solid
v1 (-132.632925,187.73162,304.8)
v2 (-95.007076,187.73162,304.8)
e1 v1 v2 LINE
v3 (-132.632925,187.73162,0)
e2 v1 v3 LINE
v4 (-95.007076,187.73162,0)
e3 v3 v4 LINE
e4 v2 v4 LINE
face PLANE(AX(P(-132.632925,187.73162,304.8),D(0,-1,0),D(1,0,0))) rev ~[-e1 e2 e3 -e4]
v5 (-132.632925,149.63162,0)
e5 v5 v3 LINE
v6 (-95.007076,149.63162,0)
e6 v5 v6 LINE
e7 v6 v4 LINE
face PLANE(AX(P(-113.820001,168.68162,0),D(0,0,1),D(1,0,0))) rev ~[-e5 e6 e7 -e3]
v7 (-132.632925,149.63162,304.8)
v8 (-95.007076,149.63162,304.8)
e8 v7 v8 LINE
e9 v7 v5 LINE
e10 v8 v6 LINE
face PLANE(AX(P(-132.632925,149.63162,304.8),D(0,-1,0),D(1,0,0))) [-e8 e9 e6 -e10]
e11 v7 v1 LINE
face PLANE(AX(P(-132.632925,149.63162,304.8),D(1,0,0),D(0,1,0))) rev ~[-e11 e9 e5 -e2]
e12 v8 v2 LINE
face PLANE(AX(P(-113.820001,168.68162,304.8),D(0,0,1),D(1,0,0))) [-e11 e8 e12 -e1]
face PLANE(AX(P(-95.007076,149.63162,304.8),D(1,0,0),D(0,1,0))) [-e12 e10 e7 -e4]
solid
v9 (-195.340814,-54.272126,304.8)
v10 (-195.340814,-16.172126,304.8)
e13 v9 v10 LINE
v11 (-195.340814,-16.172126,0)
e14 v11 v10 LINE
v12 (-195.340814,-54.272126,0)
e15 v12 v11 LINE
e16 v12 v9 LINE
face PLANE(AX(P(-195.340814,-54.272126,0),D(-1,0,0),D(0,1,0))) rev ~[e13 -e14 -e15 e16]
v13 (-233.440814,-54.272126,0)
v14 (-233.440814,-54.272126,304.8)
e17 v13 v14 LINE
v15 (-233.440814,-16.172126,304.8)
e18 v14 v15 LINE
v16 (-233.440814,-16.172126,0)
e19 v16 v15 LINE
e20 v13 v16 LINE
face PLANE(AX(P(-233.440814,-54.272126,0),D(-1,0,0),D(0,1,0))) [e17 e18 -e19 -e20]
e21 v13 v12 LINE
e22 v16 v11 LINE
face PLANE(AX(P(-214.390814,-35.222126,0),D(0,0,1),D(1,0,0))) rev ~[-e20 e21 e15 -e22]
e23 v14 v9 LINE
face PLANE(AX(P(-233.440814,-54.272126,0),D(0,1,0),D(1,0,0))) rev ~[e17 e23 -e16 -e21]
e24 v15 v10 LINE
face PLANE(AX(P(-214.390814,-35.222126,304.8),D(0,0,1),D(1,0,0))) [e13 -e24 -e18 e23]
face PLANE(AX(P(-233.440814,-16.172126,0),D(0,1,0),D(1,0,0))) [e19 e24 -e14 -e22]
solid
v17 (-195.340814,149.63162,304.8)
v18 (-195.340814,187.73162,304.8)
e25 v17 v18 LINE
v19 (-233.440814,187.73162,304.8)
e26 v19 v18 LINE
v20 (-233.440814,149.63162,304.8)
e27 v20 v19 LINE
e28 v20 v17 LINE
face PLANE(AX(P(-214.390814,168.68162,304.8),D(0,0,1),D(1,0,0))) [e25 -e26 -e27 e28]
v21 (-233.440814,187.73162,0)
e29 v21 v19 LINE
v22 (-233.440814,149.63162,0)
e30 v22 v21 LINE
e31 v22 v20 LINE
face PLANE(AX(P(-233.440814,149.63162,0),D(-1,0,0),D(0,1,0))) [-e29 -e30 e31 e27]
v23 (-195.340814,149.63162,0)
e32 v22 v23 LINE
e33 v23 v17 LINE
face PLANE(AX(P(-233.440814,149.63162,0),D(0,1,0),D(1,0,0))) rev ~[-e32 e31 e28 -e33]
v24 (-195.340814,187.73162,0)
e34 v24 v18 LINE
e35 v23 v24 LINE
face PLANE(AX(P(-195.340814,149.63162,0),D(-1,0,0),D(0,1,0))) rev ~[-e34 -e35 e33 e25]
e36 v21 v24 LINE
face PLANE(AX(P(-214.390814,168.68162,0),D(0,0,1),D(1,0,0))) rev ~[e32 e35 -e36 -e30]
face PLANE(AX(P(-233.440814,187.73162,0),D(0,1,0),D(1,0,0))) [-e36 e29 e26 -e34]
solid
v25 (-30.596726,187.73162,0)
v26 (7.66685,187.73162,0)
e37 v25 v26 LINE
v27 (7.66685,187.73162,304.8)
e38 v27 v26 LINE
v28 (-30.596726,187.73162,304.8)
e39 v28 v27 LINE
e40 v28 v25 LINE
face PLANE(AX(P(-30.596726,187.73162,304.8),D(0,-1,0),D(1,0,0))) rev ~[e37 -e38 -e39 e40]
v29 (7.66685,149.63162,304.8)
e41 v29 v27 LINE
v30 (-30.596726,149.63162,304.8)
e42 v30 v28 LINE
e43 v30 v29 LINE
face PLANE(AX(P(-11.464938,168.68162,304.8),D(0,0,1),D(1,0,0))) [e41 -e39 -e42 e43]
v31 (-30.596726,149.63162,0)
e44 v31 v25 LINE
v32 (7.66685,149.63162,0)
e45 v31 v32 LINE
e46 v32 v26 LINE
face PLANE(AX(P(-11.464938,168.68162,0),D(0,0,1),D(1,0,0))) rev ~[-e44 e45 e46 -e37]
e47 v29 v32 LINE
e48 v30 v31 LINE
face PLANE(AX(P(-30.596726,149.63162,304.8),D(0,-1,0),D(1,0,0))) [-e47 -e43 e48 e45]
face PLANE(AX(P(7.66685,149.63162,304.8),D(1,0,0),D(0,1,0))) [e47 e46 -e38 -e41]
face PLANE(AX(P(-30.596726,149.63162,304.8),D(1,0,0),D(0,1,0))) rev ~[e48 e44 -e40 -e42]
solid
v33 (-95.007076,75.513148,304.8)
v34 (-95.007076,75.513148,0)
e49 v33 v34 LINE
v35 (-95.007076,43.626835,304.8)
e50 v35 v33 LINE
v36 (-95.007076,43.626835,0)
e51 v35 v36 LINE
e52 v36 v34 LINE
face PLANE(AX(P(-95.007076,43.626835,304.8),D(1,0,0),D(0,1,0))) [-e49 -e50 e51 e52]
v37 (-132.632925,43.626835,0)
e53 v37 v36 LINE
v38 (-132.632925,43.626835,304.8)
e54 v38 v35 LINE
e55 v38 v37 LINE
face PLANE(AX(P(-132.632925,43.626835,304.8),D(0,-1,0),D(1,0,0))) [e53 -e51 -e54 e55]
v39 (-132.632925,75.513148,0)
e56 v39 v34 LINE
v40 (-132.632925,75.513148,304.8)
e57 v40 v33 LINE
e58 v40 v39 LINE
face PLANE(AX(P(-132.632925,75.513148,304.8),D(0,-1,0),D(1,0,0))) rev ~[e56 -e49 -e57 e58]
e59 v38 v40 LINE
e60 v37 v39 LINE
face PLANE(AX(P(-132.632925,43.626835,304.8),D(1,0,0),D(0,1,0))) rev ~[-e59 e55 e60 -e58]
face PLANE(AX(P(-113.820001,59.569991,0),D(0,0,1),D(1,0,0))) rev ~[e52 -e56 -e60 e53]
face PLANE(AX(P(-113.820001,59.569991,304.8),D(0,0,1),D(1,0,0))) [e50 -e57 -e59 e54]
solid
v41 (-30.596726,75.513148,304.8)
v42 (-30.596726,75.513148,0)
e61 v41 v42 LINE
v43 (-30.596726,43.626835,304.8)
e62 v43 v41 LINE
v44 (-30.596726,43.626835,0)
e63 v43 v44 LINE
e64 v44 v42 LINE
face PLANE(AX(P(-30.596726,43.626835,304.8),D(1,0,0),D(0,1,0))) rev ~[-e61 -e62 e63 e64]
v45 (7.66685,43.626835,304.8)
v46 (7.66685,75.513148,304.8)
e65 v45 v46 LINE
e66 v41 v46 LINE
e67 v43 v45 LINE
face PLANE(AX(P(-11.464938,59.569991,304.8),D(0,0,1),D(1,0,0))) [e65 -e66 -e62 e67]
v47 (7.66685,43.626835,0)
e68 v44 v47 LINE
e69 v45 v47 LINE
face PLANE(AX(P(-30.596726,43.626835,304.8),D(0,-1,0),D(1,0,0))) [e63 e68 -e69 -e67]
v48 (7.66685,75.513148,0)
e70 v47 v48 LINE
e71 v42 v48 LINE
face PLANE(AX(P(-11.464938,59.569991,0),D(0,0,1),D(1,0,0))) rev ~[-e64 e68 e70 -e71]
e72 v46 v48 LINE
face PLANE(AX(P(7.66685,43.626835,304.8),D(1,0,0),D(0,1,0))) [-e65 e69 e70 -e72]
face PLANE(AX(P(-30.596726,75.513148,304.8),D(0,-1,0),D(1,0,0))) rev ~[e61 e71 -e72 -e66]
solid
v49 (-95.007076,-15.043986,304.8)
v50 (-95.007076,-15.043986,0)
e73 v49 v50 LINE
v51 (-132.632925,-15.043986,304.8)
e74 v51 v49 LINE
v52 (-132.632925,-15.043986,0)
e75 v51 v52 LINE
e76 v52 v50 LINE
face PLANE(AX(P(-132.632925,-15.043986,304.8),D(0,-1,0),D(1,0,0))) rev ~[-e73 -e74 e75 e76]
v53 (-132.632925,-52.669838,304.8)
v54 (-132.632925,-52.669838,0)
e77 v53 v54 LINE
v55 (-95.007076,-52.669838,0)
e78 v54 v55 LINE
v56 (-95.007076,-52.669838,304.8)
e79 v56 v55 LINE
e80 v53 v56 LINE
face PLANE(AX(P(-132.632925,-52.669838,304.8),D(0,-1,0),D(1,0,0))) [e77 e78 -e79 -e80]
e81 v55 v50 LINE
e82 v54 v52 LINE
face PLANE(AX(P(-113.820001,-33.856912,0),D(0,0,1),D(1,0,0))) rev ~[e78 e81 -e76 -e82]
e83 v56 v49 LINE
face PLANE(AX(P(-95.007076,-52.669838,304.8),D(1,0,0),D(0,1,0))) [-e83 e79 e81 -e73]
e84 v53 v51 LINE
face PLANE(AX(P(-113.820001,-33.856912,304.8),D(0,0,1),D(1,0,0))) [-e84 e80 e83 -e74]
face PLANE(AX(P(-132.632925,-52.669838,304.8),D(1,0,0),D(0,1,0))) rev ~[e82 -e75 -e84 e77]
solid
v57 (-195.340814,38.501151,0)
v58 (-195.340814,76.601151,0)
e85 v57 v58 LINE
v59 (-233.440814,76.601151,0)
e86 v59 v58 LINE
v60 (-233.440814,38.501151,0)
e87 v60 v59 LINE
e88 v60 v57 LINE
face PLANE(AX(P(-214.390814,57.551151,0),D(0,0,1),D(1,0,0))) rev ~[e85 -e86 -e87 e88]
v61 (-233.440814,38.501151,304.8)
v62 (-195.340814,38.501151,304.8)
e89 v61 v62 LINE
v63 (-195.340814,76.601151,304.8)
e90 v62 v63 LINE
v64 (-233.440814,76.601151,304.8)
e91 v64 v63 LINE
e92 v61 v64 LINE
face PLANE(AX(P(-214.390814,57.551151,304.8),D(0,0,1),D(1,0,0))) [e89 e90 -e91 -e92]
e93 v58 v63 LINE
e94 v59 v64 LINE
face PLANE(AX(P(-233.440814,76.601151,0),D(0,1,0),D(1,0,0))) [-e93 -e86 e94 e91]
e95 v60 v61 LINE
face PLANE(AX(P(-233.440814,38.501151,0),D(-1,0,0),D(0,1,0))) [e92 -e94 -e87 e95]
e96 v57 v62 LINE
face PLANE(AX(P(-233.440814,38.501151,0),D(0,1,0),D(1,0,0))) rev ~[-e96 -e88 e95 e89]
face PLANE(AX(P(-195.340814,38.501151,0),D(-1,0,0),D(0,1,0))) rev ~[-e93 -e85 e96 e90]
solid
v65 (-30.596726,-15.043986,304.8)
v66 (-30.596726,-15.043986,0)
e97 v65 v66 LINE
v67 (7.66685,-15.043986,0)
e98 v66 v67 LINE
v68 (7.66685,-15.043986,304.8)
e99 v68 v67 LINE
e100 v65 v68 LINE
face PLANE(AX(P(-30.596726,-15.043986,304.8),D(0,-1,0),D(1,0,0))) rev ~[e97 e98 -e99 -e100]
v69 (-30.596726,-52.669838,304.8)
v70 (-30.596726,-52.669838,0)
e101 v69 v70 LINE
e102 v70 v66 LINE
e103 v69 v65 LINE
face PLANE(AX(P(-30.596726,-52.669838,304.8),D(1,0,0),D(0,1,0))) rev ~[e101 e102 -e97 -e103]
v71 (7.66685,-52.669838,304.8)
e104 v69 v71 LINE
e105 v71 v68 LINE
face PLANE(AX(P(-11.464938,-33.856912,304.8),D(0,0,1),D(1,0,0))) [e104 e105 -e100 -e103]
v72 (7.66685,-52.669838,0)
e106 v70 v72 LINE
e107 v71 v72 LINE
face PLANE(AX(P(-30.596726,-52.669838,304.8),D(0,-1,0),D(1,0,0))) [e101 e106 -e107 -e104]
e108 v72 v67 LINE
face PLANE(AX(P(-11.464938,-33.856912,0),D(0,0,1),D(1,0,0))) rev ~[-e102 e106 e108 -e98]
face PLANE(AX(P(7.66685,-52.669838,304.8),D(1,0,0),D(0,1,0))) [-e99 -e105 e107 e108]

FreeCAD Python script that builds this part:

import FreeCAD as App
import Part
import Sketcher

V = App.Vector
Q = App.Units.Quantity

doc = App.newDocument("Part")
body = doc.addObject("PartDesign::Body", "Body")
body.AllowCompound = True

sketch1 = body.newObject("Sketcher::SketchObject", "Sketch")
sketch1.AttachmentSupport = (doc.getObject("XY_Plane"), [""])
sketch1.MapMode = "FlatFace"
sketch1.addGeometry(Part.LineSegment(V(-233, 188, 0), V(-233, 150, 0)), False)
sketch1.addGeometry(Part.LineSegment(V(-233, 150, 0), V(-195, 150, 0)), False)
sketch1.addGeometry(Part.LineSegment(V(-195, 150, 0), V(-195, 188, 0)), False)
sketch1.addGeometry(Part.LineSegment(V(-195, 188, 0), V(-233, 188, 0)), False)
sketch1.addGeometry(Part.LineSegment(V(-233, 77, 0), V(-233, 39, 0)), False)
sketch1.addGeometry(Part.LineSegment(V(-233, 39, 0), V(-195, 39, 0)), False)
sketch1.addGeometry(Part.LineSegment(V(-195, 39, 0), V(-195, 77, 0)), False)
sketch1.addGeometry(Part.LineSegment(V(-195, 77, 0), V(-233, 77, 0)), False)
sketch1.addGeometry(Part.LineSegment(V(-233, -16, 0), V(-233, -54, 0)), False)
sketch1.addGeometry(Part.LineSegment(V(-233, -54, 0), V(-195, -54, 0)), False)
sketch1.addGeometry(Part.LineSegment(V(-195, -54, 0), V(-195, -16, 0)), False)
sketch1.addGeometry(Part.LineSegment(V(-195, -16, 0), V(-233, -16, 0)), False)
sketch1.addConstraint(Sketcher.Constraint("Coincident", 0, 2, 1, 1))
sketch1.addConstraint(Sketcher.Constraint("Coincident", 1, 2, 2, 1))
sketch1.addConstraint(Sketcher.Constraint("Coincident", 2, 2, 3, 1))
sketch1.addConstraint(Sketcher.Constraint("Coincident", 3, 2, 0, 1))
sketch1.addConstraint(Sketcher.Constraint("Coincident", 4, 2, 5, 1))
sketch1.addConstraint(Sketcher.Constraint("Coincident", 5, 2, 6, 1))
sketch1.addConstraint(Sketcher.Constraint("Coincident", 6, 2, 7, 1))
sketch1.addConstraint(Sketcher.Constraint("Coincident", 7, 2, 4, 1))
sketch1.addConstraint(Sketcher.Constraint("Coincident", 8, 2, 9, 1))
sketch1.addConstraint(Sketcher.Constraint("Coincident", 9, 2, 10, 1))
sketch1.addConstraint(Sketcher.Constraint("Coincident", 10, 2, 11, 1))
sketch1.addConstraint(Sketcher.Constraint("Coincident", 11, 2, 8, 1))
sketch1.addConstraint(Sketcher.Constraint("Vertical", 0))
sketch1.addConstraint(Sketcher.Constraint("Horizontal", 1))
sketch1.addConstraint(Sketcher.Constraint("Vertical", 2))
sketch1.addConstraint(Sketcher.Constraint("Horizontal", 3))
sketch1.addConstraint(Sketcher.Constraint("Vertical", 4))
sketch1.addConstraint(Sketcher.Constraint("Horizontal", 5))
sketch1.addConstraint(Sketcher.Constraint("Vertical", 6))
sketch1.addConstraint(Sketcher.Constraint("Horizontal", 7))
sketch1.addConstraint(Sketcher.Constraint("Vertical", 8))
sketch1.addConstraint(Sketcher.Constraint("Horizontal", 9))
sketch1.addConstraint(Sketcher.Constraint("Vertical", 10))
sketch1.addConstraint(Sketcher.Constraint("Horizontal", 11))
sketch1.addConstraint(Sketcher.Constraint("Vertical", 3, 2, 4, 2))
sketch1.addConstraint(Sketcher.Constraint("Vertical", 2, 2, 5, 2))
sketch1.addConstraint(Sketcher.Constraint("Vertical", 7, 2, 8, 2))
sketch1.addConstraint(Sketcher.Constraint("Vertical", 6, 2, 9, 2))
sketch1.addConstraint(Sketcher.Constraint("Equal", 11, 0))
sketch1.addConstraint(Sketcher.Constraint("Equal", 2, 4))
sketch1.addConstraint(Sketcher.Constraint("Equal", 6, 8))
sketch1.addConstraint(Sketcher.Constraint("DistanceX", 1, 1, 1, 2, Q("1.5 in")))
sketch1.addConstraint(Sketcher.Constraint("DistanceY", -1, 1, 0, 2, 149.63162))
sketch1.addConstraint(Sketcher.Constraint("DistanceY", -1, 1, 4, 2, 38.501151))
sketch1.addConstraint(Sketcher.Constraint("DistanceX", 0, 2, -1, 1, 233.440814))
sketch1.addConstraint(Sketcher.Constraint("DistanceY", 8, 2, -1, 1, 54.272126))
pad1 = body.newObject("PartDesign::Pad", "Pad")
pad1.Profile = sketch1
pad1.Length = Q("12 in")
body2 = doc.addObject("PartDesign::Body", "Body001")
body2.AllowCompound = True

sketch2 = body2.newObject("Sketcher::SketchObject", "Sketch001")
sketch2.AttachmentSupport = (doc.getObject("XY_Plane001"), [""])
sketch2.MapMode = "FlatFace"
sketch2.AttachmentOffset = App.Placement(V(0, 0, 12 * 25.4), App.Rotation())
sketch2.addGeometry(Part.LineSegment(V(-133, 188, 0), V(-133, 150, 0)), False)
sketch2.addGeometry(Part.LineSegment(V(-133, 150, 0), V(-95, 150, 0)), False)
sketch2.addGeometry(Part.LineSegment(V(-95, 150, 0), V(-95, 188, 0)), False)
sketch2.addGeometry(Part.LineSegment(V(-95, 188, 0), V(-133, 188, 0)), False)
sketch2.addGeometry(Part.LineSegment(V(-31, 188, 0), V(-31, 150, 0)), False)
sketch2.addGeometry(Part.LineSegment(V(-31, 150, 0), V(8, 150, 0)), False)
sketch2.addGeometry(Part.LineSegment(V(8, 150, 0), V(8, 188, 0)), False)
sketch2.addGeometry(Part.LineSegment(V(8, 188, 0), V(-31, 188, 0)), False)
sketch2.addGeometry(Part.LineSegment(V(-133, 76, 0), V(-133, 44, 0)), False)
sketch2.addGeometry(Part.LineSegment(V(-133, 44, 0), V(-95, 44, 0)), False)
sketch2.addGeometry(Part.LineSegment(V(-95, 44, 0), V(-95, 76, 0)), False)
sketch2.addGeometry(Part.LineSegment(V(-95, 76, 0), V(-133, 76, 0)), False)
sketch2.addGeometry(Part.LineSegment(V(-31, 76, 0), V(-31, 44, 0)), False)
sketch2.addGeometry(Part.LineSegment(V(-31, 44, 0), V(8, 44, 0)), False)
sketch2.addGeometry(Part.LineSegment(V(8, 44, 0), V(8, 76, 0)), False)
sketch2.addGeometry(Part.LineSegment(V(8, 76, 0), V(-31, 76, 0)), False)
sketch2.addGeometry(Part.LineSegment(V(-31, -15, 0), V(-31, -53, 0)), False)
sketch2.addGeometry(Part.LineSegment(V(-31, -53, 0), V(8, -53, 0)), False)
sketch2.addGeometry(Part.LineSegment(V(8, -53, 0), V(8, -15, 0)), False)
sketch2.addGeometry(Part.LineSegment(V(8, -15, 0), V(-31, -15, 0)), False)
sketch2.addGeometry(Part.LineSegment(V(-133, -15, 0), V(-133, -53, 0)), False)
sketch2.addGeometry(Part.LineSegment(V(-133, -53, 0), V(-95, -53, 0)), False)
sketch2.addGeometry(Part.LineSegment(V(-95, -53, 0), V(-95, -15, 0)), False)
sketch2.addGeometry(Part.LineSegment(V(-95, -15, 0), V(-133, -15, 0)), False)
sketch2.addConstraint(Sketcher.Constraint("Coincident", 0, 2, 1, 1))
sketch2.addConstraint(Sketcher.Constraint("Coincident", 1, 2, 2, 1))
sketch2.addConstraint(Sketcher.Constraint("Coincident", 2, 2, 3, 1))
sketch2.addConstraint(Sketcher.Constraint("Coincident", 3, 2, 0, 1))
sketch2.addConstraint(Sketcher.Constraint("Coincident", 4, 2, 5, 1))
sketch2.addConstraint(Sketcher.Constraint("Coincident", 5, 2, 6, 1))
sketch2.addConstraint(Sketcher.Constraint("Coincident", 6, 2, 7, 1))
sketch2.addConstraint(Sketcher.Constraint("Coincident", 7, 2, 4, 1))
sketch2.addConstraint(Sketcher.Constraint("Coincident", 8, 2, 9, 1))
sketch2.addConstraint(Sketcher.Constraint("Coincident", 9, 2, 10, 1))
sketch2.addConstraint(Sketcher.Constraint("Coincident", 10, 2, 11, 1))
sketch2.addConstraint(Sketcher.Constraint("Coincident", 11, 2, 8, 1))
sketch2.addConstraint(Sketcher.Constraint("Coincident", 12, 2, 13, 1))
sketch2.addConstraint(Sketcher.Constraint("Coincident", 13, 2, 14, 1))
sketch2.addConstraint(Sketcher.Constraint("Coincident", 14, 2, 15, 1))
sketch2.addConstraint(Sketcher.Constraint("Coincident", 15, 2, 12, 1))
sketch2.addConstraint(Sketcher.Constraint("Coincident", 16, 2, 17, 1))
sketch2.addConstraint(Sketcher.Constraint("Coincident", 17, 2, 18, 1))
sketch2.addConstraint(Sketcher.Constraint("Coincident", 18, 2, 19, 1))
sketch2.addConstraint(Sketcher.Constraint("Coincident", 19, 2, 16, 1))
sketch2.addConstraint(Sketcher.Constraint("Coincident", 20, 2, 21, 1))
sketch2.addConstraint(Sketcher.Constraint("Coincident", 21, 2, 22, 1))
sketch2.addConstraint(Sketcher.Constraint("Coincident", 22, 2, 23, 1))
sketch2.addConstraint(Sketcher.Constraint("Coincident", 23, 2, 20, 1))
sketch2.addConstraint(Sketcher.Constraint("Vertical", 0))
sketch2.addConstraint(Sketcher.Constraint("Horizontal", 1))
sketch2.addConstraint(Sketcher.Constraint("Vertical", 2))
sketch2.addConstraint(Sketcher.Constraint("Horizontal", 3))
sketch2.addConstraint(Sketcher.Constraint("Vertical", 4))
sketch2.addConstraint(Sketcher.Constraint("Horizontal", 5))
sketch2.addConstraint(Sketcher.Constraint("Vertical", 6))
sketch2.addConstraint(Sketcher.Constraint("Horizontal", 7))
sketch2.addConstraint(Sketcher.Constraint("Vertical", 8))
sketch2.addConstraint(Sketcher.Constraint("Horizontal", 9))
sketch2.addConstraint(Sketcher.Constraint("Vertical", 10))
sketch2.addConstraint(Sketcher.Constraint("Horizontal", 11))
sketch2.addConstraint(Sketcher.Constraint("Vertical", 12))
sketch2.addConstraint(Sketcher.Constraint("Horizontal", 13))
sketch2.addConstraint(Sketcher.Constraint("Vertical", 14))
sketch2.addConstraint(Sketcher.Constraint("Horizontal", 15))
sketch2.addConstraint(Sketcher.Constraint("Vertical", 16))
sketch2.addConstraint(Sketcher.Constraint("Horizontal", 17))
sketch2.addConstraint(Sketcher.Constraint("Vertical", 18))
sketch2.addConstraint(Sketcher.Constraint("Horizontal", 19))
sketch2.addConstraint(Sketcher.Constraint("Vertical", 20))
sketch2.addConstraint(Sketcher.Constraint("Horizontal", 21))
sketch2.addConstraint(Sketcher.Constraint("Vertical", 22))
sketch2.addConstraint(Sketcher.Constraint("Horizontal", 23))
sketch2.addConstraint(Sketcher.Constraint("Horizontal", 1, 2, 4, 2))
sketch2.addConstraint(Sketcher.Constraint("Horizontal", 3, 2, 6, 2))
sketch2.addConstraint(Sketcher.Constraint("Horizontal", 9, 2, 12, 2))
sketch2.addConstraint(Sketcher.Constraint("Horizontal", 11, 2, 14, 2))
sketch2.addConstraint(Sketcher.Constraint("Horizontal", 17, 2, 20, 2))
sketch2.addConstraint(Sketcher.Constraint("Horizontal", 19, 2, 22, 2))
sketch2.addConstraint(Sketcher.Constraint("Vertical", 3, 2, 8, 2))
sketch2.addConstraint(Sketcher.Constraint("Vertical", 2, 2, 9, 2))
sketch2.addConstraint(Sketcher.Constraint("Vertical", 7, 2, 12, 2))
sketch2.addConstraint(Sketcher.Constraint("Vertical", 6, 2, 13, 2))
sketch2.addConstraint(Sketcher.Constraint("Vertical", 15, 2, 16, 2))
sketch2.addConstraint(Sketcher.Constraint("Vertical", 14, 2, 17, 2))
sketch2.addConstraint(Sketcher.Constraint("Vertical", 11, 2, 20, 2))
sketch2.addConstraint(Sketcher.Constraint("Vertical", 10, 2, 21, 2))
sketch2.addConstraint(Sketcher.Constraint("DistanceY", 0, 2, 0, 1, Q("1.5 in")))
sketch2.addConstraint(Sketcher.Constraint("DistanceX", 1, 1, 1, 2, 37.625849))
sketch2.addConstraint(Sketcher.Constraint("DistanceY", 16, 2, 16, 1, 37.625852))
sketch2.addConstraint(Sketcher.Constraint("DistanceX", 0, 2, 4, 2, 102.036199))
sketch2.addConstraint(Sketcher.Constraint("DistanceX", 5, 1, 5, 2, 38.263576))
sketch2.addConstraint(Sketcher.Constraint("DistanceY", 8, 2, 8, 1, 31.886313))
sketch2.addConstraint(Sketcher.Constraint("DistanceY", -1, 1, 0, 2, 149.63162))
sketch2.addConstraint(Sketcher.Constraint("DistanceX", -1, 1, 5, 2, 7.66685))
sketch2.addConstraint(Sketcher.Constraint("DistanceY", 18, 2, 13, 2, 58.670821))
sketch2.addConstraint(Sketcher.Constraint("DistanceY", -1, 1, 8, 2, 43.626835))
pad2 = body2.newObject("PartDesign::Pad", "Pad001")
pad2.Profile = sketch2
pad2.Length = Q("12 in")
pad2.Reversed = True

doc.recompute()
